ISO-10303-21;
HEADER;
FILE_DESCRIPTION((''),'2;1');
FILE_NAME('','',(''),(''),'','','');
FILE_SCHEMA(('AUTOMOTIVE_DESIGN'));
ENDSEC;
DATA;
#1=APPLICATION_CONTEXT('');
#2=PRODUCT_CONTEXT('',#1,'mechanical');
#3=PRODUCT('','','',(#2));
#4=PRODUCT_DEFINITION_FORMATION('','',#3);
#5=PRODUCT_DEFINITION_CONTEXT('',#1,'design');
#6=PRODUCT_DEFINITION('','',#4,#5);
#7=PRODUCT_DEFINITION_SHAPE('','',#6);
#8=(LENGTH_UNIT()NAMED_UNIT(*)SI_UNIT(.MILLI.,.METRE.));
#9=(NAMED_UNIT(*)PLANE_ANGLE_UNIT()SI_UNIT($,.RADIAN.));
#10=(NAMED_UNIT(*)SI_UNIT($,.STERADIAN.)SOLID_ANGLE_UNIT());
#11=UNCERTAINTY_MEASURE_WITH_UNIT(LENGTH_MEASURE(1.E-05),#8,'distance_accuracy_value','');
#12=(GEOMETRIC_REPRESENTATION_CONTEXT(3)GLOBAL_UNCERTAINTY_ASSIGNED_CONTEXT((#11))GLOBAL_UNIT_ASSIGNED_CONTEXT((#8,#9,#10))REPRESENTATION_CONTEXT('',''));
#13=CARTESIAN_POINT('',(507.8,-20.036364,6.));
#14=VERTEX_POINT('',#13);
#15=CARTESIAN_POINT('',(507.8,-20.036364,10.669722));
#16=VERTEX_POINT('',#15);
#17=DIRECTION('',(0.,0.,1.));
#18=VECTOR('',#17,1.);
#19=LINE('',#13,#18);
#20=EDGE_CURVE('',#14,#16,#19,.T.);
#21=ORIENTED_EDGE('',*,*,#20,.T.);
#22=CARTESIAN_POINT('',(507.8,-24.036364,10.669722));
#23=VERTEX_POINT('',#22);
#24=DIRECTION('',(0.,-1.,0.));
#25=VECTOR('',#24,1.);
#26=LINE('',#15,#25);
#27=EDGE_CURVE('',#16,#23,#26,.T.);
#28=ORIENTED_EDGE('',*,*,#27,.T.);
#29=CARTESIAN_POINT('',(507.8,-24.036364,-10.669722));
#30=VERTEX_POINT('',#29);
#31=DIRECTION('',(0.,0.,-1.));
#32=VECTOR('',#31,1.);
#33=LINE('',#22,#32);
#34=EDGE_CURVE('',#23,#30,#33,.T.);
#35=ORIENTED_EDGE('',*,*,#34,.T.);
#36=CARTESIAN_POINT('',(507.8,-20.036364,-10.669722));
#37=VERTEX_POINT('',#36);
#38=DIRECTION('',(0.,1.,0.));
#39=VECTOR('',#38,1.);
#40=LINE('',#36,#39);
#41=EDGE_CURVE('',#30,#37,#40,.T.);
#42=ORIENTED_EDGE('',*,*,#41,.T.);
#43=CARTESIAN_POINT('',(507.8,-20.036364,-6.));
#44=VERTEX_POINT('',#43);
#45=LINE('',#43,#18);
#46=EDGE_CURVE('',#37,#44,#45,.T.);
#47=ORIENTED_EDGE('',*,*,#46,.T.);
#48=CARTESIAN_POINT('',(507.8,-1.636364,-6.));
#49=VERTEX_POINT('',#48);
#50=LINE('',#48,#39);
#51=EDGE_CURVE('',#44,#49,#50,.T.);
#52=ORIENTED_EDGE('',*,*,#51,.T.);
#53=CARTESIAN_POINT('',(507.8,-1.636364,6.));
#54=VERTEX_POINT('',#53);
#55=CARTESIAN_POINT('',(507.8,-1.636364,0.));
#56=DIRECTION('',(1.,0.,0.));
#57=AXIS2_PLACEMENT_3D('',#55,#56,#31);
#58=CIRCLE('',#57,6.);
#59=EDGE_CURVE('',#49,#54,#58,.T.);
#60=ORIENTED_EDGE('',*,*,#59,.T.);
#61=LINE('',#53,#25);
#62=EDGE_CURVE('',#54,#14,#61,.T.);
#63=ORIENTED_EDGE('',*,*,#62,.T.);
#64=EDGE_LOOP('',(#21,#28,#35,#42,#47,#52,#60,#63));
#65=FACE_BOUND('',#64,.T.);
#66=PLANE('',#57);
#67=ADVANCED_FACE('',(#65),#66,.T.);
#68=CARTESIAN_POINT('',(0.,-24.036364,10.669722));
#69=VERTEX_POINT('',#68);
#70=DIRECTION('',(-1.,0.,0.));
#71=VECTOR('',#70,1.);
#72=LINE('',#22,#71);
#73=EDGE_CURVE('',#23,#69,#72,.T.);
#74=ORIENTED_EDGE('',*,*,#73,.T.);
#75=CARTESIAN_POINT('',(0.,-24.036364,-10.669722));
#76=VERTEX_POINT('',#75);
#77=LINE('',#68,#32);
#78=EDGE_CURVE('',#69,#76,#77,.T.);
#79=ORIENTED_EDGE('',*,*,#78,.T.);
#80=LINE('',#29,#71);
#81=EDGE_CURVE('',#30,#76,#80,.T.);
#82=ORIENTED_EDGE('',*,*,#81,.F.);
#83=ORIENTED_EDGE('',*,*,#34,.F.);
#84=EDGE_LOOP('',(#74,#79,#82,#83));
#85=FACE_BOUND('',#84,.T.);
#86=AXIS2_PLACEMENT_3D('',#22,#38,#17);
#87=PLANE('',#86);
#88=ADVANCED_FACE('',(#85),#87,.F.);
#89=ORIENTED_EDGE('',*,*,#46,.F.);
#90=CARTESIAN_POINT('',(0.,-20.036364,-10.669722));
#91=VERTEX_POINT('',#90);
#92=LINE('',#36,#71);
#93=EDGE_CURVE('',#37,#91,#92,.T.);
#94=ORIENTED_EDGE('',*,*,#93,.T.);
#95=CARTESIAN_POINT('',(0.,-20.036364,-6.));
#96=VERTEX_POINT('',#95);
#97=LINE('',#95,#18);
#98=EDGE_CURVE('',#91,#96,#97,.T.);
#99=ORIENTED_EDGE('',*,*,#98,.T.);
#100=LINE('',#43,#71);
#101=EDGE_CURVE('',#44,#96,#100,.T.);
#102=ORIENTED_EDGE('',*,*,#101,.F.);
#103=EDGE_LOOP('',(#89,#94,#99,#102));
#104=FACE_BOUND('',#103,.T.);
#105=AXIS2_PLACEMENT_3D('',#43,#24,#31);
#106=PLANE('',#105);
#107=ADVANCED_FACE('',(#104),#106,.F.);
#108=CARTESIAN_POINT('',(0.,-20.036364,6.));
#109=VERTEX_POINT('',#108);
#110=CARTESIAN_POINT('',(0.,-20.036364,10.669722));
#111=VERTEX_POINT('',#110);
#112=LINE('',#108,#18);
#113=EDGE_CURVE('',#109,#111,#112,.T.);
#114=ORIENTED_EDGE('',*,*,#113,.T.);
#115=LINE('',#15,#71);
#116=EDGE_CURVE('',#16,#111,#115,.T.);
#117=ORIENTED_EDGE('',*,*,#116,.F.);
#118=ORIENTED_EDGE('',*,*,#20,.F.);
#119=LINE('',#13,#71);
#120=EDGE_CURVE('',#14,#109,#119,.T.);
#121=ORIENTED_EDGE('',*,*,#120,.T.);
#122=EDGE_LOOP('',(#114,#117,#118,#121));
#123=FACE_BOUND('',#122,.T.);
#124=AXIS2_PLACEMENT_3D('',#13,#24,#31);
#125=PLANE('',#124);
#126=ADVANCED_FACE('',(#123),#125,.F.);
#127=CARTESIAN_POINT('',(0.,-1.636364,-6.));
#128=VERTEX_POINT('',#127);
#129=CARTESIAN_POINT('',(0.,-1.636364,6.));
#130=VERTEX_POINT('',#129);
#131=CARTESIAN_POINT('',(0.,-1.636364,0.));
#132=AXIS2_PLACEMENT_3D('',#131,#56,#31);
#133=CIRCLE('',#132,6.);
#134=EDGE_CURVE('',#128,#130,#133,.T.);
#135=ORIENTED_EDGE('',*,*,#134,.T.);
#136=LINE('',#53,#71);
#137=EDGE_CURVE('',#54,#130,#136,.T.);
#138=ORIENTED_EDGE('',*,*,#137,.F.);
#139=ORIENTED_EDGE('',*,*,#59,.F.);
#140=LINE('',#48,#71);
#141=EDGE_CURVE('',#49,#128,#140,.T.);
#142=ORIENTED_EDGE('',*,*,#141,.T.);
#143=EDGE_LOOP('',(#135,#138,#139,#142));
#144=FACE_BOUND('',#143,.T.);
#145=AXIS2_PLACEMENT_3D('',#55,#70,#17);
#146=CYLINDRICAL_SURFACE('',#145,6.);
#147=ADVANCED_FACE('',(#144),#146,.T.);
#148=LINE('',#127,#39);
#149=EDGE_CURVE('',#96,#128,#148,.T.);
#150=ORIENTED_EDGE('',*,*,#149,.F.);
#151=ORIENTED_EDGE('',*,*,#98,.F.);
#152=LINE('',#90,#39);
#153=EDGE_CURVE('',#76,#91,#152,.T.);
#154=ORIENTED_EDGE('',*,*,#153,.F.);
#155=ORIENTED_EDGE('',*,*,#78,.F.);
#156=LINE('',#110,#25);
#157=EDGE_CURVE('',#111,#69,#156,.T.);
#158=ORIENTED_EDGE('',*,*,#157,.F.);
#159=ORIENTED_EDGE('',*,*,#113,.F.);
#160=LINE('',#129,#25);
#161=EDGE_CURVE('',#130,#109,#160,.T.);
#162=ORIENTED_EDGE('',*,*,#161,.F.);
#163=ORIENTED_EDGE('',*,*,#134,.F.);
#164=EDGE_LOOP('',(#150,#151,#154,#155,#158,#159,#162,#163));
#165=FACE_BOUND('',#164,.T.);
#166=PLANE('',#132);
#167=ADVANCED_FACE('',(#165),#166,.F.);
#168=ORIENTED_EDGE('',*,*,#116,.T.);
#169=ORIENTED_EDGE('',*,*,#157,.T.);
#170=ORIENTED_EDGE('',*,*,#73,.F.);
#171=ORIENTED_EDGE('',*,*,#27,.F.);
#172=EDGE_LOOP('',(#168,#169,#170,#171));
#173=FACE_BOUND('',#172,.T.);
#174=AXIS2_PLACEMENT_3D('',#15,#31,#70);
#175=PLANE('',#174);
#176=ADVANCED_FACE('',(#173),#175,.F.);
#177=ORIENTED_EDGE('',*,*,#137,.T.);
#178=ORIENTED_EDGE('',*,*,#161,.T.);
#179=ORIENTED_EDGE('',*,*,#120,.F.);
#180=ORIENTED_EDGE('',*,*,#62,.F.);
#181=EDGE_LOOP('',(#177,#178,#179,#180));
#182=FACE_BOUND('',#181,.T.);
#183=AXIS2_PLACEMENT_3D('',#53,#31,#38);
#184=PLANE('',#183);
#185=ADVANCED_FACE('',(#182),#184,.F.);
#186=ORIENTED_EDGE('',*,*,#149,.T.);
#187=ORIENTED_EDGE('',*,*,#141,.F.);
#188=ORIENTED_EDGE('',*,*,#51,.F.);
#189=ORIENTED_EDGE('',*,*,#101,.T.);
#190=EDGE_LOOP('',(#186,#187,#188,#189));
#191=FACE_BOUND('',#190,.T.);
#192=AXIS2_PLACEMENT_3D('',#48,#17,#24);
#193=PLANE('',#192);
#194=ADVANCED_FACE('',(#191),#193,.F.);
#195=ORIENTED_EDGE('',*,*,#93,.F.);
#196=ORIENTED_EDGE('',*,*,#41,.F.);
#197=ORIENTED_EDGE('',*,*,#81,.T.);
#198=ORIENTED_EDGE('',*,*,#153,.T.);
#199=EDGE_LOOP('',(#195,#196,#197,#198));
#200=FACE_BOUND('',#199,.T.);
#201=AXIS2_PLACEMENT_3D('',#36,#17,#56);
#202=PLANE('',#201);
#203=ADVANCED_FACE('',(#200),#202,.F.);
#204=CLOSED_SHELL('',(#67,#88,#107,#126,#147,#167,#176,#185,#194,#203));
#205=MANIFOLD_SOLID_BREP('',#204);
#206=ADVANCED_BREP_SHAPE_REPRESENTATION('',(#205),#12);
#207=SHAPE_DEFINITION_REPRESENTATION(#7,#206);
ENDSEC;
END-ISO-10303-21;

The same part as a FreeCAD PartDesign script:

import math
import FreeCAD as App
import Part
import Sketcher
from FreeCAD import Vector
Q = App.Units.Quantity

doc = App.newDocument("Part")
body = doc.addObject("PartDesign::Body", "Body")

# Sketch on YZ plane
sketch1 = body.newObject("Sketcher::SketchObject", "Sketch")
sketch1.AttachmentSupport = (doc.getObject("YZ_Plane"), [""])
sketch1.MapMode = "FlatFace"
sketch1.addGeometry(Part.LineSegment(Vector(-20, -10.7, 0), Vector(-20, -6, 0)), False)
sketch1.addGeometry(Part.LineSegment(Vector(-20, -6, 0), Vector(-1.6, -6, 0)), False)
sketch1.addGeometry(Part.ArcOfCircle(Part.Circle(Vector(-1.6, 0, 0), Vector(0, 0, 1), 6), math.radians(-90), math.radians(90)), False)
sketch1.addGeometry(Part.LineSegment(Vector(-1.6, 6, 0), Vector(-20, 6, 0)), False)
sketch1.addGeometry(Part.LineSegment(Vector(-20, 6, 0), Vector(-20, 10.7, 0)), False)
sketch1.addGeometry(Part.LineSegment(Vector(-20, 10.7, 0), Vector(-24, 10.7, 0)), False)
sketch1.addGeometry(Part.LineSegment(Vector(-24, 10.7, 0), Vector(-24, -10.7, 0)), False)
sketch1.addGeometry(Part.LineSegment(Vector(-24, -10.7, 0), Vector(-20, -10.7, 0)), False)
sketch1.addConstraint(Sketcher.Constraint("Coincident", 0, 2, 1, 1))
sketch1.addConstraint(Sketcher.Constraint("Tangent", 1, 2, 2, 1))
sketch1.addConstraint(Sketcher.Constraint("Tangent", 2, 2, 3, 1))
sketch1.addConstraint(Sketcher.Constraint("Coincident", 3, 2, 4, 1))
sketch1.addConstraint(Sketcher.Constraint("Coincident", 4, 2, 5, 1))
sketch1.addConstraint(Sketcher.Constraint("Coincident", 5, 2, 6, 1))
sketch1.addConstraint(Sketcher.Constraint("Coincident", 6, 2, 7, 1))
sketch1.addConstraint(Sketcher.Constraint("Coincident", 7, 2, 0, 1))
sketch1.addConstraint(Sketcher.Constraint("Vertical", 0))
sketch1.addConstraint(Sketcher.Constraint("Horizontal", 1))
sketch1.addConstraint(Sketcher.Constraint("Horizontal", 3))
sketch1.addConstraint(Sketcher.Constraint("Vertical", 4))
sketch1.addConstraint(Sketcher.Constraint("Horizontal", 5))
sketch1.addConstraint(Sketcher.Constraint("Vertical", 6))
sketch1.addConstraint(Sketcher.Constraint("Horizontal", 7))
sketch1.addConstraint(Sketcher.Constraint("Symmetric", 0, 2, 3, 2, -1))
sketch1.addConstraint(Sketcher.Constraint("Equal", 0, 4))
sketch1.addConstraint(Sketcher.Constraint("Radius", 2, Q("6 mm")))
sketch1.addConstraint(Sketcher.Constraint("DistanceX", 5, 2, 5, 1, Q("4 mm")))
sketch1.addConstraint(Sketcher.Constraint("DistanceX", 1, 1, 1, 2, Q("18.4 mm")))
sketch1.addConstraint(Sketcher.Constraint("DistanceY", 0, 1, 0, 2, Q("4.669722 mm")))
sketch1.addConstraint(Sketcher.Constraint("DistanceX", 2, 3, -1, 1, Q("1.636364 mm")))
pad1 = body.newObject("PartDesign::Pad", "Pad")
pad1.Profile = sketch1
pad1.Length = 507.8

doc.recompute()
